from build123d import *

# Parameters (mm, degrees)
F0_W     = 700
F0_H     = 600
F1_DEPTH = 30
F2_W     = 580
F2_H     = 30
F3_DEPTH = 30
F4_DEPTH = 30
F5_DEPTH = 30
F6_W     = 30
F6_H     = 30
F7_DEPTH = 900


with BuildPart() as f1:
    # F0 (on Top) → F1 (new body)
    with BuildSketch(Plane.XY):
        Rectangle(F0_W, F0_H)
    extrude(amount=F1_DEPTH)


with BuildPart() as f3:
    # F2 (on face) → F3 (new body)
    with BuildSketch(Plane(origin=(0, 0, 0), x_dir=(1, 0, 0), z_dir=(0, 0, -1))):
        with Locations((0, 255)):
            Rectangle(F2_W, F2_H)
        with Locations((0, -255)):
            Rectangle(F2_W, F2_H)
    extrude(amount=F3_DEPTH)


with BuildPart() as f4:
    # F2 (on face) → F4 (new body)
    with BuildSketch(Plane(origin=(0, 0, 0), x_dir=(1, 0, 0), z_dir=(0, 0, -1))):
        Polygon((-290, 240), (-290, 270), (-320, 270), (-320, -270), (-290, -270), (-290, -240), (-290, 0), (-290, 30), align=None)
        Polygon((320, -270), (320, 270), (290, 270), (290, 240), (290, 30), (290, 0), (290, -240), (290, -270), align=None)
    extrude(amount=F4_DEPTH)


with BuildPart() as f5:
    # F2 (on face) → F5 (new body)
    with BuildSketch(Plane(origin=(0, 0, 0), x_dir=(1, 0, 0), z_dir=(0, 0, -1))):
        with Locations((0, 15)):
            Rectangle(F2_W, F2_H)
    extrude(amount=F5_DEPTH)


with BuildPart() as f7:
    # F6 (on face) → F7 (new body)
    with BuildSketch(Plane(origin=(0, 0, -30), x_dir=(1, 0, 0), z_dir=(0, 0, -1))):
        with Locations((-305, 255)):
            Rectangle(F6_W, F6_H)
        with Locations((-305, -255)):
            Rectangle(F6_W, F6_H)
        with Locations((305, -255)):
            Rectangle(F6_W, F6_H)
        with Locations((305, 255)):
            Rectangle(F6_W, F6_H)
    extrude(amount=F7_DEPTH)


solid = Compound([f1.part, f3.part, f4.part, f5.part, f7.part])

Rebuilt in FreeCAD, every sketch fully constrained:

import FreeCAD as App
import Part
import Sketcher

V = App.Vector


def add_polygon(sketch, points):
    """Adds a closed chain of lines whose ends are joined by coincident constraints."""
    first, n = sketch.GeometryCount, len(points)
    for a, b in zip(points, points[1:] + points[:1]):
        sketch.addGeometry(Part.LineSegment(App.Vector(*a, 0), App.Vector(*b, 0)), False)
    for i in range(n):
        sketch.addConstraint(Sketcher.Constraint("Coincident", first + i, 2, first + (i + 1) % n, 1))

doc = App.newDocument("Part")
body = doc.addObject("PartDesign::Body", "Body")

sketch1 = doc.addObject("Sketcher::SketchObject", "Sketch")
body.addObject(sketch1)
sketch1.AttachmentSupport = (doc.XY_Plane, [""])
sketch1.MapMode = "FlatFace"
add_polygon(sketch1, [(-350, 300), (-350, -300), (350, -300), (350, 300)])
sketch1.addConstraint([
    Sketcher.Constraint("Vertical", 0),
    Sketcher.Constraint("Horizontal", 1),
    Sketcher.Constraint("Vertical", 2),
    Sketcher.Constraint("Horizontal", 3),
    Sketcher.Constraint("Symmetric", 0, 2, 2, 2, -1, 1),
    Sketcher.Constraint("DistanceX", 1, 1, 1, 2, 700.0),
    Sketcher.Constraint("DistanceY", 0, 2, 0, 1, 600.0),
])
pad1 = doc.addObject("PartDesign::Pad", "Pad")
body.addObject(pad1)
pad1.Profile = sketch1
pad1.Length = 30
body2 = doc.addObject("PartDesign::Body", "Body001")
body2.AllowCompound = True

sketch2 = doc.addObject("Sketcher::SketchObject", "Sketch001")
body2.addObject(sketch2)
sketch2.AttachmentSupport = (doc.getObject("XY_Plane001"), [""])
sketch2.MapMode = "FlatFace"
add_polygon(sketch2, [(-290, -270), (-290, -240), (290, -240), (290, -270)])
add_polygon(sketch2, [(-290, 240), (-290, 270), (290, 270), (290, 240)])
sketch2.addConstraint([
    Sketcher.Constraint("Vertical", 0),
    Sketcher.Constraint("Horizontal", 1),
    Sketcher.Constraint("Vertical", 2),
    Sketcher.Constraint("Horizontal", 3),
    Sketcher.Constraint("Vertical", 4),
    Sketcher.Constraint("Horizontal", 5),
    Sketcher.Constraint("Vertical", 6),
    Sketcher.Constraint("Horizontal", 7),
    Sketcher.Constraint("Symmetric", 2, 2, 4, 2, -1, 1),
    Sketcher.Constraint("Symmetric", 0, 2, 6, 2, -1, 1),
    Sketcher.Constraint("Vertical", 3, 2, 4, 2),
    Sketcher.Constraint("DistanceX", 1, 1, 1, 2, 580.0),
    Sketcher.Constraint("DistanceY", 0, 1, 0, 2, 30.0),
    Sketcher.Constraint("DistanceY", 0, 2, -1, 1, 240.0),
])
pad2 = doc.addObject("PartDesign::Pad", "Pad001")
body2.addObject(pad2)
pad2.Profile = sketch2
pad2.Length = 30
pad2.Reversed = True
body3 = doc.addObject("PartDesign::Body", "Body002")
body3.AllowCompound = True

sketch3 = doc.addObject("Sketcher::SketchObject", "Sketch002")
body3.addObject(sketch3)
sketch3.AttachmentSupport = (doc.getObject("XY_Plane002"), [""])
sketch3.MapMode = "FlatFace"
add_polygon(sketch3, [(-290, -270), (-320, -270), (-320, 270), (-290, 270)])
add_polygon(sketch3, [(320, 270), (320, -270), (290, -270), (290, 270)])
sketch3.addConstraint([
    Sketcher.Constraint("Horizontal", 0),
    Sketcher.Constraint("Vertical", 1),
    Sketcher.Constraint("Horizontal", 2),
    Sketcher.Constraint("Vertical", 3),
    Sketcher.Constraint("Vertical", 4),
    Sketcher.Constraint("Horizontal", 5),
    Sketcher.Constraint("Vertical", 6),
    Sketcher.Constraint("Horizontal", 7),
    Sketcher.Constraint("Symmetric", 1, 2, 4, 2, -1, 1),
    Sketcher.Constraint("Symmetric", 3, 2, 6, 2, -1, 1),
    Sketcher.Constraint("Horizontal", 3, 2, 4, 2),
    Sketcher.Constraint("DistanceX", 0, 2, 0, 1, 30.0),
    Sketcher.Constraint("DistanceY", 1, 1, 1, 2, 540.0),
    Sketcher.Constraint("DistanceX", 0, 2, -1, 1, 320.0),
])
pad3 = doc.addObject("PartDesign::Pad", "Pad002")
body3.addObject(pad3)
pad3.Profile = sketch3
pad3.Length = 30
pad3.Reversed = True
body4 = doc.addObject("PartDesign::Body", "Body003")

sketch4 = doc.addObject("Sketcher::SketchObject", "Sketch003")
body4.addObject(sketch4)
sketch4.AttachmentSupport = (doc.getObject("XY_Plane003"), [""])
sketch4.MapMode = "FlatFace"
add_polygon(sketch4, [(-290, -30), (-290, 0), (290, 0), (290, -30)])
sketch4.addConstraint([
    Sketcher.Constraint("Vertical", 0),
    Sketcher.Constraint("Horizontal", 1),
    Sketcher.Constraint("Vertical", 2),
    Sketcher.Constraint("Horizontal", 3),
    Sketcher.Constraint("Symmetric", 0, 2, 1, 2, -1, 1),
    Sketcher.Constraint("DistanceX", 1, 1, 1, 2, 580.0),
    Sketcher.Constraint("DistanceY", 0, 1, 0, 2, 30.0),
])
pad4 = doc.addObject("PartDesign::Pad", "Pad003")
body4.addObject(pad4)
pad4.Profile = sketch4
pad4.Length = 30
pad4.Reversed = True
body5 = doc.addObject("PartDesign::Body", "Body004")
body5.AllowCompound = True

sketch5 = doc.addObject("Sketcher::SketchObject", "Sketch004")
body5.addObject(sketch5)
sketch5.AttachmentSupport = (doc.getObject("XY_Plane004"), [""])
sketch5.MapMode = "FlatFace"
sketch5.AttachmentOffset = App.Placement(V(0, 0, -30), App.Rotation())
add_polygon(sketch5, [(-320, -270), (-320, -240), (-290, -240), (-290, -270)])
add_polygon(sketch5, [(-320, 240), (-320, 270), (-290, 270), (-290, 240)])
add_polygon(sketch5, [(290, 240), (290, 270), (320, 270), (320, 240)])
add_polygon(sketch5, [(290, -270), (290, -240), (320, -240), (320, -270)])
sketch5.addConstraint([
    Sketcher.Constraint("Vertical", 0),
    Sketcher.Constraint("Horizontal", 1),
    Sketcher.Constraint("Vertical", 2),
    Sketcher.Constraint("Horizontal", 3),
    Sketcher.Constraint("Vertical", 4),
    Sketcher.Constraint("Horizontal", 5),
    Sketcher.Constraint("Vertical", 6),
    Sketcher.Constraint("Horizontal", 7),
    Sketcher.Constraint("Vertical", 8),
    Sketcher.Constraint("Horizontal", 9),
    Sketcher.Constraint("Vertical", 10),
    Sketcher.Constraint("Horizontal", 11),
    Sketcher.Constraint("Vertical", 12),
    Sketcher.Constraint("Horizontal", 13),
    Sketcher.Constraint("Vertical", 14),
    Sketcher.Constraint("Horizontal", 15),
    Sketcher.Constraint("Symmetric", 2, 2, 8, 2, -1, 1),
    Sketcher.Constraint("Symmetric", 0, 2, 10, 2, -1, 1),
    Sketcher.Constraint("Symmetric", 6, 2, 12, 2, -1, 1),
    Sketcher.Constraint("Symmetric", 4, 2, 14, 2, -1, 1),
    Sketcher.Constraint("Symmetric", 5, 2, 8, 2, -2),
    Sketcher.Constraint("Symmetric", 7, 2, 10, 2, -2),
    Sketcher.Constraint("Equal", 15, 0),
    Sketcher.Constraint("DistanceX", 1, 1, 1, 2, 30.0),
    Sketcher.Constraint("DistanceX", 0, 2, -1, 1, 320.0),
    Sketcher.Constraint("DistanceY", 0, 2, -1, 1, 240.0),
])
pad5 = doc.addObject("PartDesign::Pad", "Pad004")
body5.addObject(pad5)
pad5.Profile = sketch5
pad5.Length = 900
pad5.Reversed = True

doc.recompute()
